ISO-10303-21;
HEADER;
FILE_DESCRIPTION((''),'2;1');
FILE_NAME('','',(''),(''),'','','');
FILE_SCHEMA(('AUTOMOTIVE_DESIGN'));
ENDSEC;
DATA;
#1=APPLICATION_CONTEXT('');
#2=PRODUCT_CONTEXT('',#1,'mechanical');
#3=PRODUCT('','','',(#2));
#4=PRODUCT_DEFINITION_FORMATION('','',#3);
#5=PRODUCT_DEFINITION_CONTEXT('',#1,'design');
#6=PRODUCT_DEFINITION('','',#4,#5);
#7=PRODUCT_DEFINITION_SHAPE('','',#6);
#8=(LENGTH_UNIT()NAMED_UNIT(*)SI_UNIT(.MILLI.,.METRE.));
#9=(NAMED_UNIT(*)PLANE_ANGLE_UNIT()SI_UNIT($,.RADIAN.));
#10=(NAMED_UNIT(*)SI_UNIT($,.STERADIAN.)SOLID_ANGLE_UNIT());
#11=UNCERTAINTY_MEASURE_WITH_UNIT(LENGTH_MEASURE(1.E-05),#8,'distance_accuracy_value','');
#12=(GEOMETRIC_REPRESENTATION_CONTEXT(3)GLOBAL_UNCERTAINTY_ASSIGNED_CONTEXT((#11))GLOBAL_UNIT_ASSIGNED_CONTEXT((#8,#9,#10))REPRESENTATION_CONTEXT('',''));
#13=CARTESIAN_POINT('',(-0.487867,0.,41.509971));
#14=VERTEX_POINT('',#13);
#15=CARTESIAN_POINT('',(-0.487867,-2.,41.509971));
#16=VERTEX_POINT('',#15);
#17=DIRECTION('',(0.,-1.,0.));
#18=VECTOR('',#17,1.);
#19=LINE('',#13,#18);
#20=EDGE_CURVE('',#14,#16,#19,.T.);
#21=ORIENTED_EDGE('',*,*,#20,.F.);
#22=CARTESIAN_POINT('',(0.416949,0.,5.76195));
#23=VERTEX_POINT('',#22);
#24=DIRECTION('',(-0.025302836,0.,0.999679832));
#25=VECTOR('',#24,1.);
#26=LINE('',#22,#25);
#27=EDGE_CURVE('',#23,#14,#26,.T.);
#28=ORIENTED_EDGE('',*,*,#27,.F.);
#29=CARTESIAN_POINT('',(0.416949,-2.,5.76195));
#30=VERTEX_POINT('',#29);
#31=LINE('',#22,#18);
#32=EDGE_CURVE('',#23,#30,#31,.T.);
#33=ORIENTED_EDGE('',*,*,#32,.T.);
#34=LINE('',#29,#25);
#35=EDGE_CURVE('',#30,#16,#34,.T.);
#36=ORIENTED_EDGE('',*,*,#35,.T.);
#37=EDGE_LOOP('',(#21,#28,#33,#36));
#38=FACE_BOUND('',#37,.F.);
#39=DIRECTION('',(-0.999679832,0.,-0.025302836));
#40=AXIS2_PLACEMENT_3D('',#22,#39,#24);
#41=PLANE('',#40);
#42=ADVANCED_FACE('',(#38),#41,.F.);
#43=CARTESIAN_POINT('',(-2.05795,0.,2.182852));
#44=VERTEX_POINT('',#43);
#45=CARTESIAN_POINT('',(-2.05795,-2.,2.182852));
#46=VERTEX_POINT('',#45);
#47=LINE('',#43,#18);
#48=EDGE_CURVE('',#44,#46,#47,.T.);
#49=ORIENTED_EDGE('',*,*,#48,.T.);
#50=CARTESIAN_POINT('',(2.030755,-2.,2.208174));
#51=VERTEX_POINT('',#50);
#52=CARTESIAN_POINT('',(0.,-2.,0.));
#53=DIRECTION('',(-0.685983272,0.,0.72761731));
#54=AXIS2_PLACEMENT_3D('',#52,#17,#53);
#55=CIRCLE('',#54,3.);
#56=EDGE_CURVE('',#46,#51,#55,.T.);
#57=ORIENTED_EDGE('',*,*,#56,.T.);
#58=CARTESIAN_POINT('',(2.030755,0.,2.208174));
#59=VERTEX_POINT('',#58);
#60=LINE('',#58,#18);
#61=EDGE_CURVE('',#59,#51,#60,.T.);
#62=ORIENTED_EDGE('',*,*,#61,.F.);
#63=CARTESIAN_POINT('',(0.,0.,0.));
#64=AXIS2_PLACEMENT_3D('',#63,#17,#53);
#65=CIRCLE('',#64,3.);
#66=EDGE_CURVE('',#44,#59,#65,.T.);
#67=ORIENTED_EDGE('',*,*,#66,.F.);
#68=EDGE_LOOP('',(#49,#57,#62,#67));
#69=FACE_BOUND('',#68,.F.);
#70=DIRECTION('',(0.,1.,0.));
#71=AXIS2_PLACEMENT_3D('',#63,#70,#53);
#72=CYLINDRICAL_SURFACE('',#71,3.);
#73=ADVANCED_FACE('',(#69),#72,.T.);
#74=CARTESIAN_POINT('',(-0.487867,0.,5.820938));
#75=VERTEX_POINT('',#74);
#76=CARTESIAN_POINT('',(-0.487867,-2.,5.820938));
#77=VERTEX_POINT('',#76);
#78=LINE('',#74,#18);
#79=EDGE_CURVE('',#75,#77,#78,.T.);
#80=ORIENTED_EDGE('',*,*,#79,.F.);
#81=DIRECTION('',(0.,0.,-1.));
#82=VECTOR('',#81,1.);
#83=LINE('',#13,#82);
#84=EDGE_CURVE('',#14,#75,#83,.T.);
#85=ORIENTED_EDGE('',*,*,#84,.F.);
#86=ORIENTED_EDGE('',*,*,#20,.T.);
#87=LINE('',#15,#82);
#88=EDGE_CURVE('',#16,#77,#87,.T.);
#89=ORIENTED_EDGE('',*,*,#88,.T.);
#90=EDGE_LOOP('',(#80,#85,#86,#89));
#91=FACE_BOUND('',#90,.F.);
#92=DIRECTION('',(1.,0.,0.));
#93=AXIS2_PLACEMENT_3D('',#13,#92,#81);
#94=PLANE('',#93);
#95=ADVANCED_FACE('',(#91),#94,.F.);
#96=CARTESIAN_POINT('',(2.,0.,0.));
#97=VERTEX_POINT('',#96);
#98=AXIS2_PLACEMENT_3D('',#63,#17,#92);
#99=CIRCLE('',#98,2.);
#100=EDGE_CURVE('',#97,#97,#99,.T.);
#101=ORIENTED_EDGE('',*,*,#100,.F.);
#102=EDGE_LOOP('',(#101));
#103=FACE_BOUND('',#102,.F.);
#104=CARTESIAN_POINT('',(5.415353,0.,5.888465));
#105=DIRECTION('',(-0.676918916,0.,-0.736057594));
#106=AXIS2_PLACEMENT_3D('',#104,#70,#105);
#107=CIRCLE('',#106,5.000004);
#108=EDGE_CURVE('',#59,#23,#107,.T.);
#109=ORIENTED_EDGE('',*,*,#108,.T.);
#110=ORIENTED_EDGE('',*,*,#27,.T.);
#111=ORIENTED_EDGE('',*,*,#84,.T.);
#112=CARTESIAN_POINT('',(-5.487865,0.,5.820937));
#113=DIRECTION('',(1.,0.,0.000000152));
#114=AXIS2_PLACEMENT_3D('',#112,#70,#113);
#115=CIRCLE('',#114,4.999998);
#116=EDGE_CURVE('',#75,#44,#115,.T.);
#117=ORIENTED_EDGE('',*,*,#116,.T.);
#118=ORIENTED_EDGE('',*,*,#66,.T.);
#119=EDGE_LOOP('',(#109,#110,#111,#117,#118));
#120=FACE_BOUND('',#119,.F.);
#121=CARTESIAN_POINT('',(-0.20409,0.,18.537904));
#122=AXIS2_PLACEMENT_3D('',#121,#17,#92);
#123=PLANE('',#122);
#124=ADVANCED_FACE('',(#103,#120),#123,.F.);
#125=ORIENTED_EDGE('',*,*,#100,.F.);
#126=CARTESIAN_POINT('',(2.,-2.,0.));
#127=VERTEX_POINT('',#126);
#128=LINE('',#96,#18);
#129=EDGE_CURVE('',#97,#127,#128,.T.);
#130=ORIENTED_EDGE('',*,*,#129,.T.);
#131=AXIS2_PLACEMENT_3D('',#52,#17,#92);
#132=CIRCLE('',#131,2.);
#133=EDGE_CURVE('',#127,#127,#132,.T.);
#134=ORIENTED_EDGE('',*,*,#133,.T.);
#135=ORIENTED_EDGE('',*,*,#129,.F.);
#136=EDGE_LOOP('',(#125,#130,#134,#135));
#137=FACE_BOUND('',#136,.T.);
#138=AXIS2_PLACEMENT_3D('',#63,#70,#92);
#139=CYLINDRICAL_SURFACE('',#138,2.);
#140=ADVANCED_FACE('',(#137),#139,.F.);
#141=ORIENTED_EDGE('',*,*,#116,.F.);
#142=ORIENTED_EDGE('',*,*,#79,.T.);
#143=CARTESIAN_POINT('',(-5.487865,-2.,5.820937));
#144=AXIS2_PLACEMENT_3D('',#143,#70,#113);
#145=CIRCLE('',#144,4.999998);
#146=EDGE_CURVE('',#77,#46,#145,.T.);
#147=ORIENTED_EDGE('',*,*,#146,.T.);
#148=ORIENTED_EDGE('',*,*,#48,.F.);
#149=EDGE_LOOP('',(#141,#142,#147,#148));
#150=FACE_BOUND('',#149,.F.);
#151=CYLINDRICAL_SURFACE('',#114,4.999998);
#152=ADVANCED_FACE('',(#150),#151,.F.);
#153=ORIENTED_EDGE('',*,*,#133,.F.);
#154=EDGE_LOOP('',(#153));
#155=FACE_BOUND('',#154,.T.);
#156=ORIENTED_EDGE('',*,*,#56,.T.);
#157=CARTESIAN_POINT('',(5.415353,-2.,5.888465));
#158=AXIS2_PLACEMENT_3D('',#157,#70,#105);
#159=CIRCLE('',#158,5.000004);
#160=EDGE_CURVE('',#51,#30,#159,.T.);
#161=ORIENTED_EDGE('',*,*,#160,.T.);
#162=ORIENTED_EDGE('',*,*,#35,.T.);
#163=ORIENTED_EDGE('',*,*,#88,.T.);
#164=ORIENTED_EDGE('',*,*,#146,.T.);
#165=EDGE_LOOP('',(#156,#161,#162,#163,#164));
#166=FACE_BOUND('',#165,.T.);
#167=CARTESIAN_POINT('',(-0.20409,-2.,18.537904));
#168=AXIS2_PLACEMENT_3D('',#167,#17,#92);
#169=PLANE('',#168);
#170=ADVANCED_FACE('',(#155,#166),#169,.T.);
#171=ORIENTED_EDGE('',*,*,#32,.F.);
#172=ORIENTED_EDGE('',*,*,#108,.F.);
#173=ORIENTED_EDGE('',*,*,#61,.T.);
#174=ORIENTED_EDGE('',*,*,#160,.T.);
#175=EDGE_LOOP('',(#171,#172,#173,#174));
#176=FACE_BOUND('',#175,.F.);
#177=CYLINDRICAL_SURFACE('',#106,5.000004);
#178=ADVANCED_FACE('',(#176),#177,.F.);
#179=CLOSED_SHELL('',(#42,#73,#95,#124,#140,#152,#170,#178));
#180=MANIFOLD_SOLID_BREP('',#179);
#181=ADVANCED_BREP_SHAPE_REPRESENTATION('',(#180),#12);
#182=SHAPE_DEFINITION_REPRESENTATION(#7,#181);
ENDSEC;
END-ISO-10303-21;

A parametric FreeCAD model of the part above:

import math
import FreeCAD as App
import Part
import Sketcher
Q = App.Units.Quantity

doc = App.newDocument("Part")
body = doc.addObject("PartDesign::Body", "Body")

# Sketch on XZ plane
sketch1 = body.newObject("Sketcher::SketchObject", "Sketch")
sketch1.AttachmentSupport = (doc.getObject("XZ_Plane"), [""])
sketch1.MapMode = "FlatFace"
sketch1.addGeometry(Part.ArcOfCircle(Part.Circle(App.Vector(-5.487865, 5.820937, 0), App.Vector(0, 0, 1), 4.999998), math.radians(-46.687013), math.radians(0.000009)), False)
sketch1.addGeometry(Part.ArcOfCircle(Part.Circle(App.Vector(0, 0, 0), App.Vector(0, 0, 1), 3), math.radians(133.312985), math.radians(407.39669)), False)
sketch1.addGeometry(Part.ArcOfCircle(Part.Circle(App.Vector(5.415353, 5.888465, 0), App.Vector(0, 0, 1), 5.000004), math.radians(-178.550088), math.radians(-132.603343)), False)
sketch1.addGeometry(Part.LineSegment(App.Vector(0.416949, 5.76195, 0), App.Vector(-0.487867, 41.509971, 0)), False)
sketch1.addGeometry(Part.LineSegment(App.Vector(-0.487867, 41.509971, 0), App.Vector(-0.487867, 5.820938, 0)), False)
sketch1.addGeometry(Part.Circle(App.Vector(0, 0, 0), App.Vector(0, 0, 1), 2), False)
sketch1.addConstraint(Sketcher.Constraint("Tangent", 0, 1, 1, 1))
sketch1.addConstraint(Sketcher.Constraint("Tangent", 1, 2, 2, 2))
sketch1.addConstraint(Sketcher.Constraint("Tangent", 2, 1, 3, 1))
sketch1.addConstraint(Sketcher.Constraint("Coincident", 3, 2, 4, 1))
sketch1.addConstraint(Sketcher.Constraint("Tangent", 4, 2, 0, 2))
sketch1.addConstraint(Sketcher.Constraint("Vertical", 4))
sketch1.addConstraint(Sketcher.Constraint("Coincident", 1, 3, -1, 1))
sketch1.addConstraint(Sketcher.Constraint("Coincident", 5, 3, -1, 1))
sketch1.addConstraint(Sketcher.Constraint("Diameter", 5, Q("4 mm")))
sketch1.addConstraint(Sketcher.Constraint("Radius", 0, Q("4.999998 mm")))
sketch1.addConstraint(Sketcher.Constraint("Radius", 1, Q("3 mm")))
sketch1.addConstraint(Sketcher.Constraint("Radius", 2, Q("5.000004 mm")))
sketch1.addConstraint(Sketcher.Constraint("DistanceX", 0, 1, 2, 1, Q("2.474899 mm")))
sketch1.addConstraint(Sketcher.Constraint("Distance", 3, Q("35.75947 mm")))
sketch1.addConstraint(Sketcher.Constraint("DistanceY", 4, 2, 4, 1, Q("35.689033 mm")))
pad1 = body.newObject("PartDesign::Pad", "Pad")
pad1.Profile = sketch1
pad1.Length = 2

doc.recompute()
